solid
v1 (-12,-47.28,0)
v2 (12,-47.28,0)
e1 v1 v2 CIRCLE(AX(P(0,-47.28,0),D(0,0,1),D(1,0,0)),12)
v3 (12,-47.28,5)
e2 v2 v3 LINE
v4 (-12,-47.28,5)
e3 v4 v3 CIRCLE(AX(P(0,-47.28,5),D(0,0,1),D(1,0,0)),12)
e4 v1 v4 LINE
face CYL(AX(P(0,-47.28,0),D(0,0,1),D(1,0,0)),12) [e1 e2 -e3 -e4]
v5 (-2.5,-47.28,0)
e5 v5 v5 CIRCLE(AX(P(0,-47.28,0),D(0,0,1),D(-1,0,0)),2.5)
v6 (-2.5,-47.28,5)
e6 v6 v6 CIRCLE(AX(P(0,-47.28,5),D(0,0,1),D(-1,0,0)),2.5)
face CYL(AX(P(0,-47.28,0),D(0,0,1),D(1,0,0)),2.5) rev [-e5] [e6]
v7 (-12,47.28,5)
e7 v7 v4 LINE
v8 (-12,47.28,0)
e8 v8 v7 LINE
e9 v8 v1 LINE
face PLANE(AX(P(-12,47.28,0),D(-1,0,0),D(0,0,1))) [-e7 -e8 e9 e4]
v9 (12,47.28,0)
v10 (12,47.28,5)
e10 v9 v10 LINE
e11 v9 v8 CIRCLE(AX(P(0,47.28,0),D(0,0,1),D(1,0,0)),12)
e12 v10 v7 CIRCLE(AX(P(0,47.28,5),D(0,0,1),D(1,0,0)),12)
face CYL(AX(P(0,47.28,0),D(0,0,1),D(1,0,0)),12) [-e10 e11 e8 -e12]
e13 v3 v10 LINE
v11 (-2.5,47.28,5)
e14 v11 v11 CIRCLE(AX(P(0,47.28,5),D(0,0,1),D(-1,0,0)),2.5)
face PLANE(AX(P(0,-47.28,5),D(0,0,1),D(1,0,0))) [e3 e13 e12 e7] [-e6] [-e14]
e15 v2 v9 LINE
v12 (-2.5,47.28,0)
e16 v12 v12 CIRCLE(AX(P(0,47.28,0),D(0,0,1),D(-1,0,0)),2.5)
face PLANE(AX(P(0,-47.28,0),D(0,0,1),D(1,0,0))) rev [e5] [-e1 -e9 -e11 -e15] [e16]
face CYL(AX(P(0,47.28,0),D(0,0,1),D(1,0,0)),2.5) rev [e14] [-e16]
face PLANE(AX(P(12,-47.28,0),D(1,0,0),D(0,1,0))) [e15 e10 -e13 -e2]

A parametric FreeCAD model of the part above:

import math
import FreeCAD as App
import Part
import Sketcher

V = App.Vector

doc = App.newDocument("Part")
body = doc.addObject("PartDesign::Body", "Body")

# Sketch on XY plane
sketch1 = body.newObject("Sketcher::SketchObject", "Sketch")
sketch1.AttachmentSupport = (doc.getObject("XY_Plane"), [""])
sketch1.MapMode = "FlatFace"
sketch1.AttachmentOffset = App.Placement(V(0, 0, 5), App.Rotation())
sketch1.addGeometry(Part.LineSegment(V(12, -47.3, 0), V(12, 47.3, 0)), False)
sketch1.addGeometry(Part.ArcOfCircle(Part.Circle(V(0, 47.3, 0), V(0, 0, 1), 12), math.radians(0), math.radians(180)), False)
sketch1.addGeometry(Part.LineSegment(V(-12, 47.3, 0), V(-12, -47.3, 0)), False)
sketch1.addGeometry(Part.ArcOfCircle(Part.Circle(V(0, -47.3, 0), V(0, 0, 1), 12), math.radians(180), math.radians(360)), False)
sketch1.addGeometry(Part.Circle(V(0, -47.3, 0), V(0, 0, 1), 2.5), False)
sketch1.addGeometry(Part.Circle(V(0, 47.3, 0), V(0, 0, 1), 2.5), False)
sketch1.addConstraint(Sketcher.Constraint("Tangent", 0, 2, 1, 1))
sketch1.addConstraint(Sketcher.Constraint("Tangent", 1, 2, 2, 1))
sketch1.addConstraint(Sketcher.Constraint("Tangent", 2, 2, 3, 1))
sketch1.addConstraint(Sketcher.Constraint("Tangent", 3, 2, 0, 1))
sketch1.addConstraint(Sketcher.Constraint("Vertical", 0))
sketch1.addConstraint(Sketcher.Constraint("Vertical", 2))
sketch1.addConstraint(Sketcher.Constraint("Coincident", 4, 3, 3, 3))
sketch1.addConstraint(Sketcher.Constraint("Coincident", 5, 3, 1, 3))
sketch1.addConstraint(Sketcher.Constraint("Equal", 4, 5))
sketch1.addConstraint(Sketcher.Constraint("Symmetric", 1, 3, 3, 3, -1, 1))
sketch1.addConstraint(Sketcher.Constraint("Diameter", 4, 5.0))
sketch1.addConstraint(Sketcher.Constraint("Radius", 1, 12.0))
sketch1.addConstraint(Sketcher.Constraint("DistanceY", 0, 1, 0, 2, 94.56))
pad1 = body.newObject("PartDesign::Pad", "Pad")
pad1.Profile = sketch1
pad1.Length = 5
pad1.Reversed = True

doc.recompute()
